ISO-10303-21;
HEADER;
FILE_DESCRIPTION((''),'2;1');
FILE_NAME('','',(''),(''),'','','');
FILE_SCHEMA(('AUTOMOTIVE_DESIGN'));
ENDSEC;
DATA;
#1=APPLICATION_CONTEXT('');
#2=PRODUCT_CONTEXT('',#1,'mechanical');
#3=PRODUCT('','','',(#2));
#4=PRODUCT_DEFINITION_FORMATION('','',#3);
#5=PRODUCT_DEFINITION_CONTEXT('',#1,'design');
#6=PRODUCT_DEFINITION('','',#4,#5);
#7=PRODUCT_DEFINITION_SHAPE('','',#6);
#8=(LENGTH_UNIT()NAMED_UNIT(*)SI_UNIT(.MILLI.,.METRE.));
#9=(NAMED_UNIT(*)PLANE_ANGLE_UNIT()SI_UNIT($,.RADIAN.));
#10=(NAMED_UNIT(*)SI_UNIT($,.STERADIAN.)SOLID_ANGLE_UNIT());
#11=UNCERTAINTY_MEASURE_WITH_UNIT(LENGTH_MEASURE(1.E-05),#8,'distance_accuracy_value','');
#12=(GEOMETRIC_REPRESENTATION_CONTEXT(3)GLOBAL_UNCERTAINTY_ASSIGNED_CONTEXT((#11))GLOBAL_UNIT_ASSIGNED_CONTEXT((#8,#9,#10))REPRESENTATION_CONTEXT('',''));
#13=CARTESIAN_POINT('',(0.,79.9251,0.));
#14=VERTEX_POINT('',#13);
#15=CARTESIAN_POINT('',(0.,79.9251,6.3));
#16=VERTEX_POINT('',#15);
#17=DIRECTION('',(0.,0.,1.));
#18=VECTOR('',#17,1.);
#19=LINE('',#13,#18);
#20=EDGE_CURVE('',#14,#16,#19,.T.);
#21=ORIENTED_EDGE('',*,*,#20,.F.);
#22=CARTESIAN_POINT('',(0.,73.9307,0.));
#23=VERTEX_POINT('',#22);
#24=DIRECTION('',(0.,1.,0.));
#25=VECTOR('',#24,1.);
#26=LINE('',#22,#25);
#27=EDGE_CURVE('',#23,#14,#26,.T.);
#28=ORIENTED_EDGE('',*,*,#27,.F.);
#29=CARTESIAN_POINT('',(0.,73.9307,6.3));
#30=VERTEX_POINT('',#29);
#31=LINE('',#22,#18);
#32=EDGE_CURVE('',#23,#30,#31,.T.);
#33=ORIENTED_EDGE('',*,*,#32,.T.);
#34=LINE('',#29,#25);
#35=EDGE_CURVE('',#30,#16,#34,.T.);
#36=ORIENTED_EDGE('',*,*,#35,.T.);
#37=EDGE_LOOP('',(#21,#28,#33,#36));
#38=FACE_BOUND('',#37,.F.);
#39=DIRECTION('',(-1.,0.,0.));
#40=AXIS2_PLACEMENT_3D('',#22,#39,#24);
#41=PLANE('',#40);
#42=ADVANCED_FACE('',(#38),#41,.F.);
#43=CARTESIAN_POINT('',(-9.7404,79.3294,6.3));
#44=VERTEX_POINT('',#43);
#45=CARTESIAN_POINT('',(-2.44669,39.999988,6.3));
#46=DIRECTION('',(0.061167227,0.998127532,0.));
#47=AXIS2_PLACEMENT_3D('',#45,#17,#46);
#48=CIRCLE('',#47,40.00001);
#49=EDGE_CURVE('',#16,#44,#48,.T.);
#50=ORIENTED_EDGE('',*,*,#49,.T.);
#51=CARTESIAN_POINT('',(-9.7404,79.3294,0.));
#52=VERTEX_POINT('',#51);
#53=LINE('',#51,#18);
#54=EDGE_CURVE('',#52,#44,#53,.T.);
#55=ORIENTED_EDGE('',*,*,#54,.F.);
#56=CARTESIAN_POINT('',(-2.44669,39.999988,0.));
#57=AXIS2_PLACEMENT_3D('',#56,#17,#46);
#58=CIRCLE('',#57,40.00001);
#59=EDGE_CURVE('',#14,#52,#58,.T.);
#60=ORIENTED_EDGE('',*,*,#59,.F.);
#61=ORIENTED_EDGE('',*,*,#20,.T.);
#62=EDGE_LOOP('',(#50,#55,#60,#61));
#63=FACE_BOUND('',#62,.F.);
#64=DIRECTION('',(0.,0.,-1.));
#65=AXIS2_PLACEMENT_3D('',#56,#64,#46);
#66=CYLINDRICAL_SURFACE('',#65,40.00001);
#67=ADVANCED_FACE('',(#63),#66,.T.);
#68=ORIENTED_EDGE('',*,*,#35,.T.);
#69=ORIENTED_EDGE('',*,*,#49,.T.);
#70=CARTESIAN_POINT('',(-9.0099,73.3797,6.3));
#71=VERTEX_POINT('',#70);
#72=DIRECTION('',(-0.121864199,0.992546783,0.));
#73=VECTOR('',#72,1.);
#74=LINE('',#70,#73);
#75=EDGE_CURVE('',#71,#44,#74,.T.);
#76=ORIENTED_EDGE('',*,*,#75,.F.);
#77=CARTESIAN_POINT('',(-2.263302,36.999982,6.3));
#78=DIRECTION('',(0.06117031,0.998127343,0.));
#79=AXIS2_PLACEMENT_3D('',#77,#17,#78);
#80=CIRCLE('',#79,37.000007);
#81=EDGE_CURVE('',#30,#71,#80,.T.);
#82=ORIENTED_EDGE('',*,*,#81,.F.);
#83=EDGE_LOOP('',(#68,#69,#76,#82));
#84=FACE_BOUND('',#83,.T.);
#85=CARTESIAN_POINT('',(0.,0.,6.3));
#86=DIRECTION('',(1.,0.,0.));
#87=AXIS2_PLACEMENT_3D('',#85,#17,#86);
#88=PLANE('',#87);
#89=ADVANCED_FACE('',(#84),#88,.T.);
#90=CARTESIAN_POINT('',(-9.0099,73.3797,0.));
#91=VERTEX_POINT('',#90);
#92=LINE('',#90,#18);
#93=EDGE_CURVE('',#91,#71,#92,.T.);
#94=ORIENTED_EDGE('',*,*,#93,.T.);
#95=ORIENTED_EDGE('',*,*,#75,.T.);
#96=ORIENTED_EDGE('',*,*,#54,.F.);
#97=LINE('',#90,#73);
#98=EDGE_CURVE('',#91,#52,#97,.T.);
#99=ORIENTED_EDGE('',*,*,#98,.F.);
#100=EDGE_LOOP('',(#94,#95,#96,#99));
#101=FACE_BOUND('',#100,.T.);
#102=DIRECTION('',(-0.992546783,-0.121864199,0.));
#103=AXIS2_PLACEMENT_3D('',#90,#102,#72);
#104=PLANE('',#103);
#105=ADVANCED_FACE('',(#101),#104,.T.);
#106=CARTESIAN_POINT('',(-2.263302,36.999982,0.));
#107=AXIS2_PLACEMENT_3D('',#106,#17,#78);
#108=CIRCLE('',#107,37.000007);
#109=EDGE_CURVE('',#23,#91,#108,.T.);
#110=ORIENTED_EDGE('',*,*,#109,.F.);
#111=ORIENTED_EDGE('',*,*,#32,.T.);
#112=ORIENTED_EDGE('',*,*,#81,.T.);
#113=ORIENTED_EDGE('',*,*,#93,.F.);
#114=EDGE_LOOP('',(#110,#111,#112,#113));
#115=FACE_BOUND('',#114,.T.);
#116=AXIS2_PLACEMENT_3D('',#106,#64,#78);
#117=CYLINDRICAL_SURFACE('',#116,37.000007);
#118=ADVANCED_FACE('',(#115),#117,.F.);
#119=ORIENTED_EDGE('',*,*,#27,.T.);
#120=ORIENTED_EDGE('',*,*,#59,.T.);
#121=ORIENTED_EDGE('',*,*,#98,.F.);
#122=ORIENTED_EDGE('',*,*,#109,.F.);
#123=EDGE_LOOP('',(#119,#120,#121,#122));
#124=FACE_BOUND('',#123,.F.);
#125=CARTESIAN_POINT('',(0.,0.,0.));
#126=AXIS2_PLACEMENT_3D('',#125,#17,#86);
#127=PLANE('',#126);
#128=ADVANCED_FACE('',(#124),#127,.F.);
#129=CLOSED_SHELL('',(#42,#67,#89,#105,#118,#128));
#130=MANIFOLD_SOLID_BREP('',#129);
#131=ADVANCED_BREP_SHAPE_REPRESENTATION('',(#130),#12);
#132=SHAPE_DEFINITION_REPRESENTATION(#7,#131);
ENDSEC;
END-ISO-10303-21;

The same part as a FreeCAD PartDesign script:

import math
import FreeCAD as App
import Part
import Sketcher

V = App.Vector
Q = App.Units.Quantity

doc = App.newDocument("Part")
body = doc.addObject("PartDesign::Body", "Body")

sketch1 = body.newObject("Sketcher::SketchObject", "Sketch")
sketch1.AttachmentSupport = (doc.getObject("XY_Plane"), [""])
sketch1.MapMode = "FlatFace"
sketch1.addGeometry([
    Part.LineSegment(V(-9.7404, 79.3294, 0), V(-9.0099, 73.3797, 0)),
    Part.ArcOfCircle(Part.Circle(V(-2.263, 36.99505, 0), V(0, 0, 1), 37.004911), math.radians(86.493943), math.radians(100.505181)),
    Part.LineSegment(V(0, 73.9307, 0), V(0, 79.9251, 0)),
    Part.ArcOfCircle(Part.Circle(V(-2.4465, 39.99689, 0), V(0, 0, 1), 40.003092), math.radians(86.493729), math.radians(100.505703)),
], False)
sketch1.addConstraint([
    Sketcher.Constraint("Coincident", 0, 2, 1, 2),
    Sketcher.Constraint("Coincident", 1, 1, 2, 1),
    Sketcher.Constraint("Coincident", 2, 2, 3, 1),
    Sketcher.Constraint("Coincident", 3, 2, 0, 1),
    Sketcher.Constraint("Vertical", 2),
    Sketcher.Constraint("PointOnObject", 1, 1, -2),
    Sketcher.Constraint("Angle", 0, Q("-83.0003 deg")),
    Sketcher.Constraint("DistanceY", 2, 1, 2, 2, Q("0.236 in")),
    Sketcher.Constraint("Radius", 1, Q("1.4568898 in")),
    Sketcher.Constraint("Radius", 3, 40.003),
    Sketcher.Constraint("Distance", 0, Q("0.236 in")),
    Sketcher.Constraint("DistanceX", 0, 2, 1, 3, Q("0.2656299 in")),
    Sketcher.Constraint("DistanceX", 1, 3, -1, 1, Q("0.0891 in")),
    Sketcher.Constraint("DistanceY", -1, 1, 1, 3, Q("1.4565 in")),
])
pad1 = body.newObject("PartDesign::Pad", "Pad")
pad1.Profile = sketch1
pad1.Length = 6.3

doc.recompute()
